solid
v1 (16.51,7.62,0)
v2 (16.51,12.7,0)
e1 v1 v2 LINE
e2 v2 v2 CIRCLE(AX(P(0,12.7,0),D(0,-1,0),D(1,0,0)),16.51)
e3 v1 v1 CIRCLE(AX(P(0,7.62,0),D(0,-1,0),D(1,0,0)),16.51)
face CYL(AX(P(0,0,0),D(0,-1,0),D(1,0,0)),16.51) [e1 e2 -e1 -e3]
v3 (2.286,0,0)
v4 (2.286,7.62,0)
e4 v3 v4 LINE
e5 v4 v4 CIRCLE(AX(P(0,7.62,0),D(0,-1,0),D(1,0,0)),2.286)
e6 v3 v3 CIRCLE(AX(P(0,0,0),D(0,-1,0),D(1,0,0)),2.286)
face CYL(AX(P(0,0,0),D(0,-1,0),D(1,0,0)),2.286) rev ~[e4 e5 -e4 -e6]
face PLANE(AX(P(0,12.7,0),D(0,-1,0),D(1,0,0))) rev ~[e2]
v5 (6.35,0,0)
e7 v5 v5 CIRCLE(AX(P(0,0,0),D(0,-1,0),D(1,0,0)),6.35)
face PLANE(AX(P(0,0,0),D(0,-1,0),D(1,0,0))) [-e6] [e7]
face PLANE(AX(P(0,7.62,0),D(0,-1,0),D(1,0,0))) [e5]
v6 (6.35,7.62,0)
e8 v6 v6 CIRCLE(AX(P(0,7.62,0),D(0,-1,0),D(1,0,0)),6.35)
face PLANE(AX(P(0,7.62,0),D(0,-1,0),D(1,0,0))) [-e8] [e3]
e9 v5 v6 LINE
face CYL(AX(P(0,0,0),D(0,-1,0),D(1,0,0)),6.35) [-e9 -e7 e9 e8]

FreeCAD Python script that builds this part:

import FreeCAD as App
import Part
import Sketcher

V = App.Vector
Q = App.Units.Quantity

doc = App.newDocument("Part")
params = doc.addObject("Spreadsheet::Sheet", "Params")
for row, (alias, value) in enumerate([
    ("sketch1_diameter", "1.3 in"),
    ("pad1_length", "0.5 in"),
    ("sketch2_diameter", "0.18 in"),
    ("pocket1_length", "0.3 in"),
    ("sketch3_diameter", "1.3 in"),
    ("sketch3_diameter2", "0.5 in"),
    ("pocket2_length", "0.3 in"),
], start=1):
    params.set(f"A{row}", alias)
    params.set(f"B{row}", "=" + value)
    params.setAlias(f"B{row}", alias)

body = doc.addObject("PartDesign::Body", "Body")

# Sketch on XZ plane
sketch1 = body.newObject("Sketcher::SketchObject", "Sketch")
sketch1.AttachmentSupport = (doc.getObject("XZ_Plane"), [""])
sketch1.MapMode = "FlatFace"
sketch1.addGeometry(Part.Circle(V(0, 0, 0), V(0, 0, 1), 17), False)
sketch1.addConstraint([
    Sketcher.Constraint("Coincident", 0, 3, -1, 1),
    Sketcher.Constraint("Diameter", 0, Q("1.3 in")),
])
sketch1.setExpression("Constraints[1]", "Params.sketch1_diameter")
pad1 = body.newObject("PartDesign::Pad", "Pad")
pad1.Profile = sketch1
pad1.setExpression("Length", "Params.pad1_length")
pad1.Reversed = True

# Sketch on XZ plane
sketch2 = body.newObject("Sketcher::SketchObject", "Sketch001")
sketch2.AttachmentSupport = (doc.getObject("XZ_Plane"), [""])
sketch2.MapMode = "FlatFace"
sketch2.addGeometry(Part.Circle(V(0, 0, 0), V(0, 0, 1), 2.3), False)
sketch2.addConstraint([
    Sketcher.Constraint("Coincident", 0, 3, -1, 1),
    Sketcher.Constraint("Diameter", 0, Q("0.18 in")),
])
sketch2.setExpression("Constraints[1]", "Params.sketch2_diameter")
pocket1 = body.newObject("PartDesign::Pocket", "Pocket")
pocket1.Profile = sketch2
pocket1.setExpression("Length", "Params.pocket1_length")

# Sketch on XZ plane
sketch3 = body.newObject("Sketcher::SketchObject", "Sketch002")
sketch3.AttachmentSupport = (doc.getObject("XZ_Plane"), [""])
sketch3.MapMode = "FlatFace"
sketch3.addGeometry([
    Part.Circle(V(0, 0, 0), V(0, 0, 1), 17),
    Part.Circle(V(0, 0, 0), V(0, 0, 1), 6),
], False)
sketch3.addConstraint([
    Sketcher.Constraint("Coincident", 0, 3, -1, 1),
    Sketcher.Constraint("Coincident", 1, 3, -1, 1),
    Sketcher.Constraint("Diameter", 0, Q("1.3 in")),
    Sketcher.Constraint("Diameter", 1, Q("0.5 in")),
])
sketch3.setExpression("Constraints[2]", "Params.sketch3_diameter")
sketch3.setExpression("Constraints[3]", "Params.sketch3_diameter2")
pocket2 = body.newObject("PartDesign::Pocket", "Pocket001")
pocket2.Profile = sketch3
pocket2.setExpression("Length", "Params.pocket2_length")

doc.recompute()
